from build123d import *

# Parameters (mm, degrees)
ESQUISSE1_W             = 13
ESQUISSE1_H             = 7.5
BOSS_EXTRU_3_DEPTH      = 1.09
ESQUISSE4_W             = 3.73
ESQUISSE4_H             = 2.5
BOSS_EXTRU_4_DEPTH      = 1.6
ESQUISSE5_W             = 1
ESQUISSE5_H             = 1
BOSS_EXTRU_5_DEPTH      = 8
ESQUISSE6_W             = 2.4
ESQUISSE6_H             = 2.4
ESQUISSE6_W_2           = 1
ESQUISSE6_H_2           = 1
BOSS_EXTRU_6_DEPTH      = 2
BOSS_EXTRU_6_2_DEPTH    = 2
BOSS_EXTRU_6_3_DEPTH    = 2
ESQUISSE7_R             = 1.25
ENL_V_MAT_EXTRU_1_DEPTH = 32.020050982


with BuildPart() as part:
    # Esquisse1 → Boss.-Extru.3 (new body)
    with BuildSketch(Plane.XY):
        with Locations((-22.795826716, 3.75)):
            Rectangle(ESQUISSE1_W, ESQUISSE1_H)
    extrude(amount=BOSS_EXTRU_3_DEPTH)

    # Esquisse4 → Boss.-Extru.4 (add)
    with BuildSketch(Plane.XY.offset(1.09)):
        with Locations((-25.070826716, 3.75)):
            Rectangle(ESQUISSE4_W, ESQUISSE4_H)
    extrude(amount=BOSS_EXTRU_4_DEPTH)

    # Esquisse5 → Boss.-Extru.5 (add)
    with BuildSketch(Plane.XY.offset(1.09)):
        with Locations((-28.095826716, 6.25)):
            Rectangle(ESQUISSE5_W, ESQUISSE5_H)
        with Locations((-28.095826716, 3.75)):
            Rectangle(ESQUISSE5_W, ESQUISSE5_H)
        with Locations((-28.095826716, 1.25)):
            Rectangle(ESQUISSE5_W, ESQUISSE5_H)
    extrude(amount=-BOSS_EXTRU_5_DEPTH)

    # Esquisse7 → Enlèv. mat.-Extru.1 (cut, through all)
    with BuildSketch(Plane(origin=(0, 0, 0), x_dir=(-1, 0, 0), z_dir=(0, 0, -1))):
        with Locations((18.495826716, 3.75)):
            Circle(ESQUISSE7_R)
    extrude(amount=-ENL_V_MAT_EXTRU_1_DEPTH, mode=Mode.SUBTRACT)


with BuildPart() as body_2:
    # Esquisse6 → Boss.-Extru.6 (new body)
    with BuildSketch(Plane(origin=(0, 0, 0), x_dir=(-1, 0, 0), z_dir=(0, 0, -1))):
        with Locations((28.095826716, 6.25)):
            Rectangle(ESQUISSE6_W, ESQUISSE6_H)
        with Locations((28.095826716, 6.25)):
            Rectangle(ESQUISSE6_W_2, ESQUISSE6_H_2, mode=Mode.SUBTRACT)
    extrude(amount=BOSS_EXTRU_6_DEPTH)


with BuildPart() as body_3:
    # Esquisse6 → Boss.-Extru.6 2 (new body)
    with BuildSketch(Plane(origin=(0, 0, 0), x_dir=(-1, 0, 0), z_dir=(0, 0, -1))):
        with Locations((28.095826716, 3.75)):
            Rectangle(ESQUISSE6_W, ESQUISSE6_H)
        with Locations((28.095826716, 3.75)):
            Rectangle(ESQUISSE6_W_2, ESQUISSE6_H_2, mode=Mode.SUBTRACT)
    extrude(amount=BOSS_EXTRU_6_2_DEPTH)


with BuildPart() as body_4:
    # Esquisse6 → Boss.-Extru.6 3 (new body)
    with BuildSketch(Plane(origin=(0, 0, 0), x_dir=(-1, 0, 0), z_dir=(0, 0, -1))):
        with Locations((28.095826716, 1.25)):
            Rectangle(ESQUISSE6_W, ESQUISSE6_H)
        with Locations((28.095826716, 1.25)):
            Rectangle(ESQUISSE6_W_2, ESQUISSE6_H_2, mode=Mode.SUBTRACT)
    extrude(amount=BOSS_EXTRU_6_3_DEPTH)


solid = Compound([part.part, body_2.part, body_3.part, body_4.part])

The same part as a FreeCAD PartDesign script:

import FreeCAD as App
import Part
import Sketcher

V = App.Vector

doc = App.newDocument("Part")
body = doc.addObject("PartDesign::Body", "Body")

sketch1 = doc.addObject("Sketcher::SketchObject", "Sketch")
body.addObject(sketch1)
sketch1.AttachmentSupport = (doc.XY_Plane, [""])
sketch1.MapMode = "FlatFace"
sketch1.addGeometry([
    Part.LineSegment(V(-29, 8, 0), V(-29, 0, 0)),
    Part.LineSegment(V(-29, 0, 0), V(-16, 0, 0)),
    Part.LineSegment(V(-16, 0, 0), V(-16, 8, 0)),
    Part.LineSegment(V(-16, 8, 0), V(-29, 8, 0)),
], False)
sketch1.addConstraint([
    Sketcher.Constraint("Coincident", 0, 2, 1, 1),
    Sketcher.Constraint("Coincident", 1, 2, 2, 1),
    Sketcher.Constraint("Coincident", 2, 2, 3, 1),
    Sketcher.Constraint("Coincident", 3, 2, 0, 1),
    Sketcher.Constraint("Vertical", 0),
    Sketcher.Constraint("Horizontal", 1),
    Sketcher.Constraint("Vertical", 2),
    Sketcher.Constraint("Horizontal", 3),
    Sketcher.Constraint("PointOnObject", 0, 2, -1),
    Sketcher.Constraint("DistanceX", 1, 1, 1, 2, 13.0),
    Sketcher.Constraint("DistanceY", 0, 2, 0, 1, 7.5),
    Sketcher.Constraint("DistanceX", 0, 2, -1, 1, 29.295827),
])
pad1 = doc.addObject("PartDesign::Pad", "Pad")
body.addObject(pad1)
pad1.Profile = sketch1
pad1.Length = 1.09

sketch2 = doc.addObject("Sketcher::SketchObject", "Sketch001")
body.addObject(sketch2)
sketch2.AttachmentSupport = (doc.XY_Plane, [""])
sketch2.MapMode = "FlatFace"
sketch2.AttachmentOffset = App.Placement(V(0, 0, 1.09), App.Rotation())
sketch2.addGeometry([
    Part.LineSegment(V(-26.9, 5, 0), V(-26.9, 2.5, 0)),
    Part.LineSegment(V(-26.9, 2.5, 0), V(-23.2, 2.5, 0)),
    Part.LineSegment(V(-23.2, 2.5, 0), V(-23.2, 5, 0)),
    Part.LineSegment(V(-23.2, 5, 0), V(-26.9, 5, 0)),
], False)
sketch2.addConstraint([
    Sketcher.Constraint("Coincident", 0, 2, 1, 1),
    Sketcher.Constraint("Coincident", 1, 2, 2, 1),
    Sketcher.Constraint("Coincident", 2, 2, 3, 1),
    Sketcher.Constraint("Coincident", 3, 2, 0, 1),
    Sketcher.Constraint("Vertical", 0),
    Sketcher.Constraint("Horizontal", 1),
    Sketcher.Constraint("Vertical", 2),
    Sketcher.Constraint("Horizontal", 3),
    Sketcher.Constraint("DistanceY", 0, 2, 0, 1, 2.5),
    Sketcher.Constraint("DistanceY", -1, 1, 2, 2, 5.0),
    Sketcher.Constraint("DistanceX", 1, 1, 1, 2, 3.73),
    Sketcher.Constraint("DistanceX", 0, 2, -1, 1, 26.935827),
])
pad2 = doc.addObject("PartDesign::Pad", "Pad001")
body.addObject(pad2)
pad2.Profile = sketch2
pad2.Length = 1.6

sketch3 = doc.addObject("Sketcher::SketchObject", "Sketch002")
body.addObject(sketch3)
sketch3.AttachmentSupport = (doc.XY_Plane, [""])
sketch3.MapMode = "FlatFace"
sketch3.AttachmentOffset = App.Placement(V(0, 0, 1.09), App.Rotation())
sketch3.addGeometry([
    Part.LineSegment(V(-28.6, 6.8, 0), V(-28.6, 5.8, 0)),
    Part.LineSegment(V(-28.6, 5.8, 0), V(-27.6, 5.8, 0)),
    Part.LineSegment(V(-27.6, 5.8, 0), V(-27.6, 6.8, 0)),
    Part.LineSegment(V(-27.6, 6.8, 0), V(-28.6, 6.8, 0)),
    Part.LineSegment(V(-28.6, 4.2, 0), V(-28.6, 3.2, 0)),
    Part.LineSegment(V(-28.6, 3.2, 0), V(-27.6, 3.2, 0)),
    Part.LineSegment(V(-27.6, 3.2, 0), V(-27.6, 4.2, 0)),
    Part.LineSegment(V(-27.6, 4.2, 0), V(-28.6, 4.2, 0)),
    Part.LineSegment(V(-28.6, 1.8, 0), V(-28.6, 0.8, 0)),
    Part.LineSegment(V(-28.6, 0.8, 0), V(-27.6, 0.8, 0)),
    Part.LineSegment(V(-27.6, 0.8, 0), V(-27.6, 1.8, 0)),
    Part.LineSegment(V(-27.6, 1.8, 0), V(-28.6, 1.8, 0)),
], False)
sketch3.addConstraint([
    Sketcher.Constraint("Coincident", 0, 2, 1, 1),
    Sketcher.Constraint("Coincident", 1, 2, 2, 1),
    Sketcher.Constraint("Coincident", 2, 2, 3, 1),
    Sketcher.Constraint("Coincident", 3, 2, 0, 1),
    Sketcher.Constraint("Coincident", 4, 2, 5, 1),
    Sketcher.Constraint("Coincident", 5, 2, 6, 1),
    Sketcher.Constraint("Coincident", 6, 2, 7, 1),
    Sketcher.Constraint("Coincident", 7, 2, 4, 1),
    Sketcher.Constraint("Coincident", 8, 2, 9, 1),
    Sketcher.Constraint("Coincident", 9, 2, 10, 1),
    Sketcher.Constraint("Coincident", 10, 2, 11, 1),
    Sketcher.Constraint("Coincident", 11, 2, 8, 1),
    Sketcher.Constraint("Vertical", 0),
    Sketcher.Constraint("Horizontal", 1),
    Sketcher.Constraint("Vertical", 2),
    Sketcher.Constraint("Horizontal", 3),
    Sketcher.Constraint("Vertical", 4),
    Sketcher.Constraint("Horizontal", 5),
    Sketcher.Constraint("Vertical", 6),
    Sketcher.Constraint("Horizontal", 7),
    Sketcher.Constraint("Vertical", 8),
    Sketcher.Constraint("Horizontal", 9),
    Sketcher.Constraint("Vertical", 10),
    Sketcher.Constraint("Horizontal", 11),
    Sketcher.Constraint("Vertical", 3, 2, 4, 2),
    Sketcher.Constraint("Vertical", 2, 2, 5, 2),
    Sketcher.Constraint("Vertical", 7, 2, 8, 2),
    Sketcher.Constraint("Vertical", 6, 2, 9, 2),
    Sketcher.Constraint("Equal", 11, 0),
    Sketcher.Constraint("Equal", 2, 4),
    Sketcher.Constraint("Equal", 6, 8),
    Sketcher.Constraint("DistanceX", 1, 1, 1, 2, 1.0),
    Sketcher.Constraint("DistanceY", 8, 2, 0, 2, 5.0),
    Sketcher.Constraint("DistanceY", 4, 2, 0, 2, 2.5),
    Sketcher.Constraint("DistanceY", -1, 1, 0, 2, 5.75),
    Sketcher.Constraint("DistanceX", 0, 2, -1, 1, 28.595827),
])
pad3 = doc.addObject("PartDesign::Pad", "Pad002")
body.addObject(pad3)
pad3.Profile = sketch3
pad3.Length = 8
pad3.Reversed = True

sketch4 = doc.addObject("Sketcher::SketchObject", "Sketch003")
body.addObject(sketch4)
sketch4.AttachmentSupport = (doc.XY_Plane, [""])
sketch4.MapMode = "FlatFace"
sketch4.addGeometry(Part.Circle(V(-18.5, 3.8, 0), V(0, 0, 1), 1.2), False)
sketch4.addConstraint([
    Sketcher.Constraint("Diameter", 0, 2.5),
    Sketcher.Constraint("DistanceY", -1, 1, 0, 3, 3.75),
    Sketcher.Constraint("DistanceX", 0, 3, -1, 1, 18.495827),
])
pocket1 = doc.addObject("PartDesign::Pocket", "Pocket")
body.addObject(pocket1)
pocket1.Profile = sketch4
pocket1.Type = "ThroughAll"
pocket1.Reversed = True
body2 = doc.addObject("PartDesign::Body", "Body001")

sketch5 = doc.addObject("Sketcher::SketchObject", "Sketch004")
body2.addObject(sketch5)
sketch5.AttachmentSupport = (doc.getObject("XY_Plane001"), [""])
sketch5.MapMode = "FlatFace"
sketch5.addGeometry([
    Part.LineSegment(V(-26.9, 7.5, 0), V(-26.9, 5, 0)),
    Part.LineSegment(V(-26.9, 5, 0), V(-29.3, 5, 0)),
    Part.LineSegment(V(-29.3, 5, 0), V(-29.3, 7.5, 0)),
    Part.LineSegment(V(-29.3, 7.5, 0), V(-26.9, 7.5, 0)),
    Part.LineSegment(V(-28.6, 5.8, 0), V(-27.6, 5.8, 0)),
    Part.LineSegment(V(-27.6, 5.8, 0), V(-27.6, 6.8, 0)),
    Part.LineSegment(V(-27.6, 6.8, 0), V(-28.6, 6.8, 0)),
    Part.LineSegment(V(-28.6, 6.8, 0), V(-28.6, 5.8, 0)),
], False)
sketch5.addConstraint([
    Sketcher.Constraint("Coincident", 0, 2, 1, 1),
    Sketcher.Constraint("Coincident", 1, 2, 2, 1),
    Sketcher.Constraint("Coincident", 2, 2, 3, 1),
    Sketcher.Constraint("Coincident", 3, 2, 0, 1),
    Sketcher.Constraint("Coincident", 4, 2, 5, 1),
    Sketcher.Constraint("Coincident", 5, 2, 6, 1),
    Sketcher.Constraint("Coincident", 6, 2, 7, 1),
    Sketcher.Constraint("Coincident", 7, 2, 4, 1),
    Sketcher.Constraint("Vertical", 0),
    Sketcher.Constraint("Horizontal", 1),
    Sketcher.Constraint("Vertical", 2),
    Sketcher.Constraint("Horizontal", 3),
    Sketcher.Constraint("Horizontal", 4),
    Sketcher.Constraint("Vertical", 5),
    Sketcher.Constraint("Horizontal", 6),
    Sketcher.Constraint("Vertical", 7),
    Sketcher.Constraint("Equal", 3, 0),
    Sketcher.Constraint("Equal", 6, 5),
    Sketcher.Constraint("DistanceX", 4, 1, 4, 2, 1.0),
    Sketcher.Constraint("DistanceX", 1, 2, 1, 1, 2.4),
    Sketcher.Constraint("DistanceX", 4, 2, 0, 2, 0.7),
    Sketcher.Constraint("DistanceY", 0, 2, 4, 2, 0.7),
    Sketcher.Constraint("DistanceY", -1, 1, 0, 2, 5.05),
    Sketcher.Constraint("DistanceX", 0, 2, -1, 1, 26.895827),
])
pad4 = doc.addObject("PartDesign::Pad", "Pad003")
body2.addObject(pad4)
pad4.Profile = sketch5
pad4.Length = 2
pad4.Reversed = True
body3 = doc.addObject("PartDesign::Body", "Body002")

sketch6 = doc.addObject("Sketcher::SketchObject", "Sketch005")
body3.addObject(sketch6)
sketch6.AttachmentSupport = (doc.getObject("XY_Plane002"), [""])
sketch6.MapMode = "FlatFace"
sketch6.addGeometry([
    Part.LineSegment(V(-26.9, 5, 0), V(-26.9, 2.5, 0)),
    Part.LineSegment(V(-26.9, 2.5, 0), V(-29.3, 2.5, 0)),
    Part.LineSegment(V(-29.3, 2.5, 0), V(-29.3, 5, 0)),
    Part.LineSegment(V(-29.3, 5, 0), V(-26.9, 5, 0)),
    Part.LineSegment(V(-28.6, 3.2, 0), V(-27.6, 3.2, 0)),
    Part.LineSegment(V(-27.6, 3.2, 0), V(-27.6, 4.2, 0)),
    Part.LineSegment(V(-27.6, 4.2, 0), V(-28.6, 4.2, 0)),
    Part.LineSegment(V(-28.6, 4.2, 0), V(-28.6, 3.2, 0)),
], False)
sketch6.addConstraint([
    Sketcher.Constraint("Coincident", 0, 2, 1, 1),
    Sketcher.Constraint("Coincident", 1, 2, 2, 1),
    Sketcher.Constraint("Coincident", 2, 2, 3, 1),
    Sketcher.Constraint("Coincident", 3, 2, 0, 1),
    Sketcher.Constraint("Coincident", 4, 2, 5, 1),
    Sketcher.Constraint("Coincident", 5, 2, 6, 1),
    Sketcher.Constraint("Coincident", 6, 2, 7, 1),
    Sketcher.Constraint("Coincident", 7, 2, 4, 1),
    Sketcher.Constraint("Vertical", 0),
    Sketcher.Constraint("Horizontal", 1),
    Sketcher.Constraint("Vertical", 2),
    Sketcher.Constraint("Horizontal", 3),
    Sketcher.Constraint("Horizontal", 4),
    Sketcher.Constraint("Vertical", 5),
    Sketcher.Constraint("Horizontal", 6),
    Sketcher.Constraint("Vertical", 7),
    Sketcher.Constraint("Equal", 3, 0),
    Sketcher.Constraint("Equal", 6, 5),
    Sketcher.Constraint("DistanceX", 4, 1, 4, 2, 1.0),
    Sketcher.Constraint("DistanceX", 1, 2, 1, 1, 2.4),
    Sketcher.Constraint("DistanceX", 4, 2, 0, 2, 0.7),
    Sketcher.Constraint("DistanceY", 0, 2, 4, 2, 0.7),
    Sketcher.Constraint("DistanceY", -1, 1, 0, 2, 2.55),
    Sketcher.Constraint("DistanceX", 0, 2, -1, 1, 26.895827),
])
pad5 = doc.addObject("PartDesign::Pad", "Pad004")
body3.addObject(pad5)
pad5.Profile = sketch6
pad5.Length = 2
pad5.Reversed = True
body4 = doc.addObject("PartDesign::Body", "Body003")

sketch7 = doc.addObject("Sketcher::SketchObject", "Sketch006")
body4.addObject(sketch7)
sketch7.AttachmentSupport = (doc.getObject("XY_Plane003"), [""])
sketch7.MapMode = "FlatFace"
sketch7.addGeometry([
    Part.LineSegment(V(-26.9, 2.5, 0), V(-26.9, 0.1, 0)),
    Part.LineSegment(V(-26.9, 0.1, 0), V(-29.3, 0.1, 0)),
    Part.LineSegment(V(-29.3, 0.1, 0), V(-29.3, 2.5, 0)),
    Part.LineSegment(V(-29.3, 2.5, 0), V(-26.9, 2.5, 0)),
    Part.LineSegment(V(-28.6, 0.8, 0), V(-27.6, 0.8, 0)),
    Part.LineSegment(V(-27.6, 0.8, 0), V(-27.6, 1.8, 0)),
    Part.LineSegment(V(-27.6, 1.8, 0), V(-28.6, 1.8, 0)),
    Part.LineSegment(V(-28.6, 1.8, 0), V(-28.6, 0.8, 0)),
], False)
sketch7.addConstraint([
    Sketcher.Constraint("Coincident", 0, 2, 1, 1),
    Sketcher.Constraint("Coincident", 1, 2, 2, 1),
    Sketcher.Constraint("Coincident", 2, 2, 3, 1),
    Sketcher.Constraint("Coincident", 3, 2, 0, 1),
    Sketcher.Constraint("Coincident", 4, 2, 5, 1),
    Sketcher.Constraint("Coincident", 5, 2, 6, 1),
    Sketcher.Constraint("Coincident", 6, 2, 7, 1),
    Sketcher.Constraint("Coincident", 7, 2, 4, 1),
    Sketcher.Constraint("Vertical", 0),
    Sketcher.Constraint("Horizontal", 1),
    Sketcher.Constraint("Vertical", 2),
    Sketcher.Constraint("Horizontal", 3),
    Sketcher.Constraint("Horizontal", 4),
    Sketcher.Constraint("Vertical", 5),
    Sketcher.Constraint("Horizontal", 6),
    Sketcher.Constraint("Vertical", 7),
    Sketcher.Constraint("Equal", 3, 0),
    Sketcher.Constraint("Equal", 6, 5),
    Sketcher.Constraint("DistanceX", 4, 1, 4, 2, 1.0),
    Sketcher.Constraint("DistanceX", 1, 2, 1, 1, 2.4),
    Sketcher.Constraint("DistanceX", 4, 2, 0, 2, 0.7),
    Sketcher.Constraint("DistanceY", 0, 2, 4, 2, 0.7),
    Sketcher.Constraint("DistanceY", -1, 1, 0, 2, 0.05),
    Sketcher.Constraint("DistanceX", 0, 2, -1, 1, 26.895827),
])
pad6 = doc.addObject("PartDesign::Pad", "Pad005")
body4.addObject(pad6)
pad6.Profile = sketch7
pad6.Length = 2
pad6.Reversed = True

doc.recompute()
